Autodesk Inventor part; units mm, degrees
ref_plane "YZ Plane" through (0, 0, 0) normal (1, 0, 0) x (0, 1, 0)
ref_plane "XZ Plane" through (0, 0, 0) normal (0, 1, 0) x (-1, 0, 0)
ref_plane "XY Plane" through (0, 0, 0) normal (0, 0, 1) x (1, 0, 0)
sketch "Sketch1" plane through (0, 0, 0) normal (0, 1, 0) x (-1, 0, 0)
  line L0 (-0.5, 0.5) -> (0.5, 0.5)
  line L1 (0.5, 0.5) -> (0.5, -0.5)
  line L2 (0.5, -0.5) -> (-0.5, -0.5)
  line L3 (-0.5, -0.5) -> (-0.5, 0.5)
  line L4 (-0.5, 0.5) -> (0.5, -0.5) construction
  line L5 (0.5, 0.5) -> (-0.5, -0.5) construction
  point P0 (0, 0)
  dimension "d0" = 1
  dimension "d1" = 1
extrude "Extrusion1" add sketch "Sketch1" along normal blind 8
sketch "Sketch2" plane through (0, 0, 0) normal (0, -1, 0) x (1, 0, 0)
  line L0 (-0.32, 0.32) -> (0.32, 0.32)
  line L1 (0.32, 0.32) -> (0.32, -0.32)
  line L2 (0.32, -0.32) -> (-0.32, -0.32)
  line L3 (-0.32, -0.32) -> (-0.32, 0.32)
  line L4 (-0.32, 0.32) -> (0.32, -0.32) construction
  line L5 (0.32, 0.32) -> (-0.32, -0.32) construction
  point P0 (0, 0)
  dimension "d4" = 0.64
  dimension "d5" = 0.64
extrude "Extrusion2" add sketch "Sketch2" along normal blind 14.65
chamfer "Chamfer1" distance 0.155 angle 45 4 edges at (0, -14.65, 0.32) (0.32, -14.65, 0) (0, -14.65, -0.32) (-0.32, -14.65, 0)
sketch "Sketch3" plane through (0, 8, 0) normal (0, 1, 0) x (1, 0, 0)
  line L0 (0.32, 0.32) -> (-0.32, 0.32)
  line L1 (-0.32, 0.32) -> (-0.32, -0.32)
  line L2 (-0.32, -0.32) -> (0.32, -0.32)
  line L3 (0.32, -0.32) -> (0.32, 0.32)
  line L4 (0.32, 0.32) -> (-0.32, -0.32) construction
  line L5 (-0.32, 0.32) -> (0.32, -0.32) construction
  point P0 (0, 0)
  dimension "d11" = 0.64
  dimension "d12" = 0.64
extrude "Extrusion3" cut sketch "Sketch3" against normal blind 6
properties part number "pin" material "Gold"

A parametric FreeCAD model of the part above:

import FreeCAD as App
import Part
import Sketcher
from FreeCAD import Vector


def edges_at(feature, points):
    """Names of the edges that pass closest to the given points."""
    edges = feature.Shape.Edges
    near = lambda p: min(range(len(edges)), key=lambda i: edges[i].distToShape(Part.Vertex(*p))[0])
    return sorted({f"Edge{near(p) + 1}" for p in points})

doc = App.newDocument("Part")
body = doc.addObject("PartDesign::Body", "Body")

# Sketch on XZ plane
sketch1 = body.newObject("Sketcher::SketchObject", "Sketch")
sketch1.AttachmentSupport = (doc.getObject("XZ_Plane"), [""])
sketch1.MapMode = "FlatFace"
sketch1.addGeometry([
    Part.LineSegment(Vector(-0.5, 0.5, 0), Vector(0.5, 0.5, 0)),
    Part.LineSegment(Vector(0.5, 0.5, 0), Vector(0.5, -0.5, 0)),
    Part.LineSegment(Vector(0.5, -0.5, 0), Vector(-0.5, -0.5, 0)),
    Part.LineSegment(Vector(-0.5, -0.5, 0), Vector(-0.5, 0.5, 0)),
], False)
sketch1.addConstraint([
    Sketcher.Constraint("Coincident", 0, 2, 1, 1),
    Sketcher.Constraint("Coincident", 1, 2, 2, 1),
    Sketcher.Constraint("Coincident", 2, 2, 3, 1),
    Sketcher.Constraint("Coincident", 3, 2, 0, 1),
    Sketcher.Constraint("Horizontal", 0),
    Sketcher.Constraint("Vertical", 1),
    Sketcher.Constraint("Horizontal", 2),
    Sketcher.Constraint("Vertical", 3),
    Sketcher.Constraint("Symmetric", 0, 2, 2, 2, -1, 1),
    Sketcher.Constraint("Equal", 2, 1),
    Sketcher.Constraint("DistanceX", 0, 1, 0, 2, 1.0),
])
pad1 = body.newObject("PartDesign::Pad", "Pad")
pad1.Profile = sketch1
pad1.Length = 8
pad1.Reversed = True

# Sketch on XZ plane
sketch2 = body.newObject("Sketcher::SketchObject", "Sketch001")
sketch2.AttachmentSupport = (doc.getObject("XZ_Plane"), [""])
sketch2.MapMode = "FlatFace"
sketch2.addGeometry([
    Part.LineSegment(Vector(0.32, 0.32, 0), Vector(-0.32, 0.32, 0)),
    Part.LineSegment(Vector(-0.32, 0.32, 0), Vector(-0.32, -0.32, 0)),
    Part.LineSegment(Vector(-0.32, -0.32, 0), Vector(0.32, -0.32, 0)),
    Part.LineSegment(Vector(0.32, -0.32, 0), Vector(0.32, 0.32, 0)),
], False)
sketch2.addConstraint([
    Sketcher.Constraint("Coincident", 0, 2, 1, 1),
    Sketcher.Constraint("Coincident", 1, 2, 2, 1),
    Sketcher.Constraint("Coincident", 2, 2, 3, 1),
    Sketcher.Constraint("Coincident", 3, 2, 0, 1),
    Sketcher.Constraint("Horizontal", 0),
    Sketcher.Constraint("Vertical", 1),
    Sketcher.Constraint("Horizontal", 2),
    Sketcher.Constraint("Vertical", 3),
    Sketcher.Constraint("Symmetric", 0, 2, 2, 2, -1, 1),
    Sketcher.Constraint("Equal", 2, 1),
    Sketcher.Constraint("DistanceX", 0, 2, 0, 1, 0.64),
])
pad2 = body.newObject("PartDesign::Pad", "Pad001")
pad2.Profile = sketch2
pad2.Length = 14.65
doc.recompute()

chamfer = body.newObject("PartDesign::Chamfer", "Chamfer")
chamfer.Base = (pad2, edges_at(pad2, [
    (0, -14.65, 0.32),
    (0.32, -14.65, 0),
    (0, -14.65, -0.32),
    (-0.32, -14.65, 0),
]))
chamfer.Size = 0.155

# Sketch on XZ plane
sketch3 = body.newObject("Sketcher::SketchObject", "Sketch002")
sketch3.AttachmentSupport = (doc.getObject("XZ_Plane"), [""])
sketch3.MapMode = "FlatFace"
sketch3.AttachmentOffset = App.Placement(Vector(0, 0, -8), App.Rotation())
sketch3.addGeometry([
    Part.LineSegment(Vector(0.32, 0.32, 0), Vector(0.32, -0.32, 0)),
    Part.LineSegment(Vector(0.32, -0.32, 0), Vector(-0.32, -0.32, 0)),
    Part.LineSegment(Vector(-0.32, -0.32, 0), Vector(-0.32, 0.32, 0)),
    Part.LineSegment(Vector(-0.32, 0.32, 0), Vector(0.32, 0.32, 0)),
], False)
sketch3.addConstraint([
    Sketcher.Constraint("Coincident", 0, 2, 1, 1),
    Sketcher.Constraint("Coincident", 1, 2, 2, 1),
    Sketcher.Constraint("Coincident", 2, 2, 3, 1),
    Sketcher.Constraint("Coincident", 3, 2, 0, 1),
    Sketcher.Constraint("Vertical", 0),
    Sketcher.Constraint("Horizontal", 1),
    Sketcher.Constraint("Vertical", 2),
    Sketcher.Constraint("Horizontal", 3),
    Sketcher.Constraint("Symmetric", 0, 2, 2, 2, -1, 1),
    Sketcher.Constraint("Equal", 3, 0),
    Sketcher.Constraint("DistanceX", 1, 2, 1, 1, 0.64),
])
pocket1 = body.newObject("PartDesign::Pocket", "Pocket")
pocket1.Profile = sketch3
pocket1.Length = 6
pocket1.Reversed = True

doc.recompute()
